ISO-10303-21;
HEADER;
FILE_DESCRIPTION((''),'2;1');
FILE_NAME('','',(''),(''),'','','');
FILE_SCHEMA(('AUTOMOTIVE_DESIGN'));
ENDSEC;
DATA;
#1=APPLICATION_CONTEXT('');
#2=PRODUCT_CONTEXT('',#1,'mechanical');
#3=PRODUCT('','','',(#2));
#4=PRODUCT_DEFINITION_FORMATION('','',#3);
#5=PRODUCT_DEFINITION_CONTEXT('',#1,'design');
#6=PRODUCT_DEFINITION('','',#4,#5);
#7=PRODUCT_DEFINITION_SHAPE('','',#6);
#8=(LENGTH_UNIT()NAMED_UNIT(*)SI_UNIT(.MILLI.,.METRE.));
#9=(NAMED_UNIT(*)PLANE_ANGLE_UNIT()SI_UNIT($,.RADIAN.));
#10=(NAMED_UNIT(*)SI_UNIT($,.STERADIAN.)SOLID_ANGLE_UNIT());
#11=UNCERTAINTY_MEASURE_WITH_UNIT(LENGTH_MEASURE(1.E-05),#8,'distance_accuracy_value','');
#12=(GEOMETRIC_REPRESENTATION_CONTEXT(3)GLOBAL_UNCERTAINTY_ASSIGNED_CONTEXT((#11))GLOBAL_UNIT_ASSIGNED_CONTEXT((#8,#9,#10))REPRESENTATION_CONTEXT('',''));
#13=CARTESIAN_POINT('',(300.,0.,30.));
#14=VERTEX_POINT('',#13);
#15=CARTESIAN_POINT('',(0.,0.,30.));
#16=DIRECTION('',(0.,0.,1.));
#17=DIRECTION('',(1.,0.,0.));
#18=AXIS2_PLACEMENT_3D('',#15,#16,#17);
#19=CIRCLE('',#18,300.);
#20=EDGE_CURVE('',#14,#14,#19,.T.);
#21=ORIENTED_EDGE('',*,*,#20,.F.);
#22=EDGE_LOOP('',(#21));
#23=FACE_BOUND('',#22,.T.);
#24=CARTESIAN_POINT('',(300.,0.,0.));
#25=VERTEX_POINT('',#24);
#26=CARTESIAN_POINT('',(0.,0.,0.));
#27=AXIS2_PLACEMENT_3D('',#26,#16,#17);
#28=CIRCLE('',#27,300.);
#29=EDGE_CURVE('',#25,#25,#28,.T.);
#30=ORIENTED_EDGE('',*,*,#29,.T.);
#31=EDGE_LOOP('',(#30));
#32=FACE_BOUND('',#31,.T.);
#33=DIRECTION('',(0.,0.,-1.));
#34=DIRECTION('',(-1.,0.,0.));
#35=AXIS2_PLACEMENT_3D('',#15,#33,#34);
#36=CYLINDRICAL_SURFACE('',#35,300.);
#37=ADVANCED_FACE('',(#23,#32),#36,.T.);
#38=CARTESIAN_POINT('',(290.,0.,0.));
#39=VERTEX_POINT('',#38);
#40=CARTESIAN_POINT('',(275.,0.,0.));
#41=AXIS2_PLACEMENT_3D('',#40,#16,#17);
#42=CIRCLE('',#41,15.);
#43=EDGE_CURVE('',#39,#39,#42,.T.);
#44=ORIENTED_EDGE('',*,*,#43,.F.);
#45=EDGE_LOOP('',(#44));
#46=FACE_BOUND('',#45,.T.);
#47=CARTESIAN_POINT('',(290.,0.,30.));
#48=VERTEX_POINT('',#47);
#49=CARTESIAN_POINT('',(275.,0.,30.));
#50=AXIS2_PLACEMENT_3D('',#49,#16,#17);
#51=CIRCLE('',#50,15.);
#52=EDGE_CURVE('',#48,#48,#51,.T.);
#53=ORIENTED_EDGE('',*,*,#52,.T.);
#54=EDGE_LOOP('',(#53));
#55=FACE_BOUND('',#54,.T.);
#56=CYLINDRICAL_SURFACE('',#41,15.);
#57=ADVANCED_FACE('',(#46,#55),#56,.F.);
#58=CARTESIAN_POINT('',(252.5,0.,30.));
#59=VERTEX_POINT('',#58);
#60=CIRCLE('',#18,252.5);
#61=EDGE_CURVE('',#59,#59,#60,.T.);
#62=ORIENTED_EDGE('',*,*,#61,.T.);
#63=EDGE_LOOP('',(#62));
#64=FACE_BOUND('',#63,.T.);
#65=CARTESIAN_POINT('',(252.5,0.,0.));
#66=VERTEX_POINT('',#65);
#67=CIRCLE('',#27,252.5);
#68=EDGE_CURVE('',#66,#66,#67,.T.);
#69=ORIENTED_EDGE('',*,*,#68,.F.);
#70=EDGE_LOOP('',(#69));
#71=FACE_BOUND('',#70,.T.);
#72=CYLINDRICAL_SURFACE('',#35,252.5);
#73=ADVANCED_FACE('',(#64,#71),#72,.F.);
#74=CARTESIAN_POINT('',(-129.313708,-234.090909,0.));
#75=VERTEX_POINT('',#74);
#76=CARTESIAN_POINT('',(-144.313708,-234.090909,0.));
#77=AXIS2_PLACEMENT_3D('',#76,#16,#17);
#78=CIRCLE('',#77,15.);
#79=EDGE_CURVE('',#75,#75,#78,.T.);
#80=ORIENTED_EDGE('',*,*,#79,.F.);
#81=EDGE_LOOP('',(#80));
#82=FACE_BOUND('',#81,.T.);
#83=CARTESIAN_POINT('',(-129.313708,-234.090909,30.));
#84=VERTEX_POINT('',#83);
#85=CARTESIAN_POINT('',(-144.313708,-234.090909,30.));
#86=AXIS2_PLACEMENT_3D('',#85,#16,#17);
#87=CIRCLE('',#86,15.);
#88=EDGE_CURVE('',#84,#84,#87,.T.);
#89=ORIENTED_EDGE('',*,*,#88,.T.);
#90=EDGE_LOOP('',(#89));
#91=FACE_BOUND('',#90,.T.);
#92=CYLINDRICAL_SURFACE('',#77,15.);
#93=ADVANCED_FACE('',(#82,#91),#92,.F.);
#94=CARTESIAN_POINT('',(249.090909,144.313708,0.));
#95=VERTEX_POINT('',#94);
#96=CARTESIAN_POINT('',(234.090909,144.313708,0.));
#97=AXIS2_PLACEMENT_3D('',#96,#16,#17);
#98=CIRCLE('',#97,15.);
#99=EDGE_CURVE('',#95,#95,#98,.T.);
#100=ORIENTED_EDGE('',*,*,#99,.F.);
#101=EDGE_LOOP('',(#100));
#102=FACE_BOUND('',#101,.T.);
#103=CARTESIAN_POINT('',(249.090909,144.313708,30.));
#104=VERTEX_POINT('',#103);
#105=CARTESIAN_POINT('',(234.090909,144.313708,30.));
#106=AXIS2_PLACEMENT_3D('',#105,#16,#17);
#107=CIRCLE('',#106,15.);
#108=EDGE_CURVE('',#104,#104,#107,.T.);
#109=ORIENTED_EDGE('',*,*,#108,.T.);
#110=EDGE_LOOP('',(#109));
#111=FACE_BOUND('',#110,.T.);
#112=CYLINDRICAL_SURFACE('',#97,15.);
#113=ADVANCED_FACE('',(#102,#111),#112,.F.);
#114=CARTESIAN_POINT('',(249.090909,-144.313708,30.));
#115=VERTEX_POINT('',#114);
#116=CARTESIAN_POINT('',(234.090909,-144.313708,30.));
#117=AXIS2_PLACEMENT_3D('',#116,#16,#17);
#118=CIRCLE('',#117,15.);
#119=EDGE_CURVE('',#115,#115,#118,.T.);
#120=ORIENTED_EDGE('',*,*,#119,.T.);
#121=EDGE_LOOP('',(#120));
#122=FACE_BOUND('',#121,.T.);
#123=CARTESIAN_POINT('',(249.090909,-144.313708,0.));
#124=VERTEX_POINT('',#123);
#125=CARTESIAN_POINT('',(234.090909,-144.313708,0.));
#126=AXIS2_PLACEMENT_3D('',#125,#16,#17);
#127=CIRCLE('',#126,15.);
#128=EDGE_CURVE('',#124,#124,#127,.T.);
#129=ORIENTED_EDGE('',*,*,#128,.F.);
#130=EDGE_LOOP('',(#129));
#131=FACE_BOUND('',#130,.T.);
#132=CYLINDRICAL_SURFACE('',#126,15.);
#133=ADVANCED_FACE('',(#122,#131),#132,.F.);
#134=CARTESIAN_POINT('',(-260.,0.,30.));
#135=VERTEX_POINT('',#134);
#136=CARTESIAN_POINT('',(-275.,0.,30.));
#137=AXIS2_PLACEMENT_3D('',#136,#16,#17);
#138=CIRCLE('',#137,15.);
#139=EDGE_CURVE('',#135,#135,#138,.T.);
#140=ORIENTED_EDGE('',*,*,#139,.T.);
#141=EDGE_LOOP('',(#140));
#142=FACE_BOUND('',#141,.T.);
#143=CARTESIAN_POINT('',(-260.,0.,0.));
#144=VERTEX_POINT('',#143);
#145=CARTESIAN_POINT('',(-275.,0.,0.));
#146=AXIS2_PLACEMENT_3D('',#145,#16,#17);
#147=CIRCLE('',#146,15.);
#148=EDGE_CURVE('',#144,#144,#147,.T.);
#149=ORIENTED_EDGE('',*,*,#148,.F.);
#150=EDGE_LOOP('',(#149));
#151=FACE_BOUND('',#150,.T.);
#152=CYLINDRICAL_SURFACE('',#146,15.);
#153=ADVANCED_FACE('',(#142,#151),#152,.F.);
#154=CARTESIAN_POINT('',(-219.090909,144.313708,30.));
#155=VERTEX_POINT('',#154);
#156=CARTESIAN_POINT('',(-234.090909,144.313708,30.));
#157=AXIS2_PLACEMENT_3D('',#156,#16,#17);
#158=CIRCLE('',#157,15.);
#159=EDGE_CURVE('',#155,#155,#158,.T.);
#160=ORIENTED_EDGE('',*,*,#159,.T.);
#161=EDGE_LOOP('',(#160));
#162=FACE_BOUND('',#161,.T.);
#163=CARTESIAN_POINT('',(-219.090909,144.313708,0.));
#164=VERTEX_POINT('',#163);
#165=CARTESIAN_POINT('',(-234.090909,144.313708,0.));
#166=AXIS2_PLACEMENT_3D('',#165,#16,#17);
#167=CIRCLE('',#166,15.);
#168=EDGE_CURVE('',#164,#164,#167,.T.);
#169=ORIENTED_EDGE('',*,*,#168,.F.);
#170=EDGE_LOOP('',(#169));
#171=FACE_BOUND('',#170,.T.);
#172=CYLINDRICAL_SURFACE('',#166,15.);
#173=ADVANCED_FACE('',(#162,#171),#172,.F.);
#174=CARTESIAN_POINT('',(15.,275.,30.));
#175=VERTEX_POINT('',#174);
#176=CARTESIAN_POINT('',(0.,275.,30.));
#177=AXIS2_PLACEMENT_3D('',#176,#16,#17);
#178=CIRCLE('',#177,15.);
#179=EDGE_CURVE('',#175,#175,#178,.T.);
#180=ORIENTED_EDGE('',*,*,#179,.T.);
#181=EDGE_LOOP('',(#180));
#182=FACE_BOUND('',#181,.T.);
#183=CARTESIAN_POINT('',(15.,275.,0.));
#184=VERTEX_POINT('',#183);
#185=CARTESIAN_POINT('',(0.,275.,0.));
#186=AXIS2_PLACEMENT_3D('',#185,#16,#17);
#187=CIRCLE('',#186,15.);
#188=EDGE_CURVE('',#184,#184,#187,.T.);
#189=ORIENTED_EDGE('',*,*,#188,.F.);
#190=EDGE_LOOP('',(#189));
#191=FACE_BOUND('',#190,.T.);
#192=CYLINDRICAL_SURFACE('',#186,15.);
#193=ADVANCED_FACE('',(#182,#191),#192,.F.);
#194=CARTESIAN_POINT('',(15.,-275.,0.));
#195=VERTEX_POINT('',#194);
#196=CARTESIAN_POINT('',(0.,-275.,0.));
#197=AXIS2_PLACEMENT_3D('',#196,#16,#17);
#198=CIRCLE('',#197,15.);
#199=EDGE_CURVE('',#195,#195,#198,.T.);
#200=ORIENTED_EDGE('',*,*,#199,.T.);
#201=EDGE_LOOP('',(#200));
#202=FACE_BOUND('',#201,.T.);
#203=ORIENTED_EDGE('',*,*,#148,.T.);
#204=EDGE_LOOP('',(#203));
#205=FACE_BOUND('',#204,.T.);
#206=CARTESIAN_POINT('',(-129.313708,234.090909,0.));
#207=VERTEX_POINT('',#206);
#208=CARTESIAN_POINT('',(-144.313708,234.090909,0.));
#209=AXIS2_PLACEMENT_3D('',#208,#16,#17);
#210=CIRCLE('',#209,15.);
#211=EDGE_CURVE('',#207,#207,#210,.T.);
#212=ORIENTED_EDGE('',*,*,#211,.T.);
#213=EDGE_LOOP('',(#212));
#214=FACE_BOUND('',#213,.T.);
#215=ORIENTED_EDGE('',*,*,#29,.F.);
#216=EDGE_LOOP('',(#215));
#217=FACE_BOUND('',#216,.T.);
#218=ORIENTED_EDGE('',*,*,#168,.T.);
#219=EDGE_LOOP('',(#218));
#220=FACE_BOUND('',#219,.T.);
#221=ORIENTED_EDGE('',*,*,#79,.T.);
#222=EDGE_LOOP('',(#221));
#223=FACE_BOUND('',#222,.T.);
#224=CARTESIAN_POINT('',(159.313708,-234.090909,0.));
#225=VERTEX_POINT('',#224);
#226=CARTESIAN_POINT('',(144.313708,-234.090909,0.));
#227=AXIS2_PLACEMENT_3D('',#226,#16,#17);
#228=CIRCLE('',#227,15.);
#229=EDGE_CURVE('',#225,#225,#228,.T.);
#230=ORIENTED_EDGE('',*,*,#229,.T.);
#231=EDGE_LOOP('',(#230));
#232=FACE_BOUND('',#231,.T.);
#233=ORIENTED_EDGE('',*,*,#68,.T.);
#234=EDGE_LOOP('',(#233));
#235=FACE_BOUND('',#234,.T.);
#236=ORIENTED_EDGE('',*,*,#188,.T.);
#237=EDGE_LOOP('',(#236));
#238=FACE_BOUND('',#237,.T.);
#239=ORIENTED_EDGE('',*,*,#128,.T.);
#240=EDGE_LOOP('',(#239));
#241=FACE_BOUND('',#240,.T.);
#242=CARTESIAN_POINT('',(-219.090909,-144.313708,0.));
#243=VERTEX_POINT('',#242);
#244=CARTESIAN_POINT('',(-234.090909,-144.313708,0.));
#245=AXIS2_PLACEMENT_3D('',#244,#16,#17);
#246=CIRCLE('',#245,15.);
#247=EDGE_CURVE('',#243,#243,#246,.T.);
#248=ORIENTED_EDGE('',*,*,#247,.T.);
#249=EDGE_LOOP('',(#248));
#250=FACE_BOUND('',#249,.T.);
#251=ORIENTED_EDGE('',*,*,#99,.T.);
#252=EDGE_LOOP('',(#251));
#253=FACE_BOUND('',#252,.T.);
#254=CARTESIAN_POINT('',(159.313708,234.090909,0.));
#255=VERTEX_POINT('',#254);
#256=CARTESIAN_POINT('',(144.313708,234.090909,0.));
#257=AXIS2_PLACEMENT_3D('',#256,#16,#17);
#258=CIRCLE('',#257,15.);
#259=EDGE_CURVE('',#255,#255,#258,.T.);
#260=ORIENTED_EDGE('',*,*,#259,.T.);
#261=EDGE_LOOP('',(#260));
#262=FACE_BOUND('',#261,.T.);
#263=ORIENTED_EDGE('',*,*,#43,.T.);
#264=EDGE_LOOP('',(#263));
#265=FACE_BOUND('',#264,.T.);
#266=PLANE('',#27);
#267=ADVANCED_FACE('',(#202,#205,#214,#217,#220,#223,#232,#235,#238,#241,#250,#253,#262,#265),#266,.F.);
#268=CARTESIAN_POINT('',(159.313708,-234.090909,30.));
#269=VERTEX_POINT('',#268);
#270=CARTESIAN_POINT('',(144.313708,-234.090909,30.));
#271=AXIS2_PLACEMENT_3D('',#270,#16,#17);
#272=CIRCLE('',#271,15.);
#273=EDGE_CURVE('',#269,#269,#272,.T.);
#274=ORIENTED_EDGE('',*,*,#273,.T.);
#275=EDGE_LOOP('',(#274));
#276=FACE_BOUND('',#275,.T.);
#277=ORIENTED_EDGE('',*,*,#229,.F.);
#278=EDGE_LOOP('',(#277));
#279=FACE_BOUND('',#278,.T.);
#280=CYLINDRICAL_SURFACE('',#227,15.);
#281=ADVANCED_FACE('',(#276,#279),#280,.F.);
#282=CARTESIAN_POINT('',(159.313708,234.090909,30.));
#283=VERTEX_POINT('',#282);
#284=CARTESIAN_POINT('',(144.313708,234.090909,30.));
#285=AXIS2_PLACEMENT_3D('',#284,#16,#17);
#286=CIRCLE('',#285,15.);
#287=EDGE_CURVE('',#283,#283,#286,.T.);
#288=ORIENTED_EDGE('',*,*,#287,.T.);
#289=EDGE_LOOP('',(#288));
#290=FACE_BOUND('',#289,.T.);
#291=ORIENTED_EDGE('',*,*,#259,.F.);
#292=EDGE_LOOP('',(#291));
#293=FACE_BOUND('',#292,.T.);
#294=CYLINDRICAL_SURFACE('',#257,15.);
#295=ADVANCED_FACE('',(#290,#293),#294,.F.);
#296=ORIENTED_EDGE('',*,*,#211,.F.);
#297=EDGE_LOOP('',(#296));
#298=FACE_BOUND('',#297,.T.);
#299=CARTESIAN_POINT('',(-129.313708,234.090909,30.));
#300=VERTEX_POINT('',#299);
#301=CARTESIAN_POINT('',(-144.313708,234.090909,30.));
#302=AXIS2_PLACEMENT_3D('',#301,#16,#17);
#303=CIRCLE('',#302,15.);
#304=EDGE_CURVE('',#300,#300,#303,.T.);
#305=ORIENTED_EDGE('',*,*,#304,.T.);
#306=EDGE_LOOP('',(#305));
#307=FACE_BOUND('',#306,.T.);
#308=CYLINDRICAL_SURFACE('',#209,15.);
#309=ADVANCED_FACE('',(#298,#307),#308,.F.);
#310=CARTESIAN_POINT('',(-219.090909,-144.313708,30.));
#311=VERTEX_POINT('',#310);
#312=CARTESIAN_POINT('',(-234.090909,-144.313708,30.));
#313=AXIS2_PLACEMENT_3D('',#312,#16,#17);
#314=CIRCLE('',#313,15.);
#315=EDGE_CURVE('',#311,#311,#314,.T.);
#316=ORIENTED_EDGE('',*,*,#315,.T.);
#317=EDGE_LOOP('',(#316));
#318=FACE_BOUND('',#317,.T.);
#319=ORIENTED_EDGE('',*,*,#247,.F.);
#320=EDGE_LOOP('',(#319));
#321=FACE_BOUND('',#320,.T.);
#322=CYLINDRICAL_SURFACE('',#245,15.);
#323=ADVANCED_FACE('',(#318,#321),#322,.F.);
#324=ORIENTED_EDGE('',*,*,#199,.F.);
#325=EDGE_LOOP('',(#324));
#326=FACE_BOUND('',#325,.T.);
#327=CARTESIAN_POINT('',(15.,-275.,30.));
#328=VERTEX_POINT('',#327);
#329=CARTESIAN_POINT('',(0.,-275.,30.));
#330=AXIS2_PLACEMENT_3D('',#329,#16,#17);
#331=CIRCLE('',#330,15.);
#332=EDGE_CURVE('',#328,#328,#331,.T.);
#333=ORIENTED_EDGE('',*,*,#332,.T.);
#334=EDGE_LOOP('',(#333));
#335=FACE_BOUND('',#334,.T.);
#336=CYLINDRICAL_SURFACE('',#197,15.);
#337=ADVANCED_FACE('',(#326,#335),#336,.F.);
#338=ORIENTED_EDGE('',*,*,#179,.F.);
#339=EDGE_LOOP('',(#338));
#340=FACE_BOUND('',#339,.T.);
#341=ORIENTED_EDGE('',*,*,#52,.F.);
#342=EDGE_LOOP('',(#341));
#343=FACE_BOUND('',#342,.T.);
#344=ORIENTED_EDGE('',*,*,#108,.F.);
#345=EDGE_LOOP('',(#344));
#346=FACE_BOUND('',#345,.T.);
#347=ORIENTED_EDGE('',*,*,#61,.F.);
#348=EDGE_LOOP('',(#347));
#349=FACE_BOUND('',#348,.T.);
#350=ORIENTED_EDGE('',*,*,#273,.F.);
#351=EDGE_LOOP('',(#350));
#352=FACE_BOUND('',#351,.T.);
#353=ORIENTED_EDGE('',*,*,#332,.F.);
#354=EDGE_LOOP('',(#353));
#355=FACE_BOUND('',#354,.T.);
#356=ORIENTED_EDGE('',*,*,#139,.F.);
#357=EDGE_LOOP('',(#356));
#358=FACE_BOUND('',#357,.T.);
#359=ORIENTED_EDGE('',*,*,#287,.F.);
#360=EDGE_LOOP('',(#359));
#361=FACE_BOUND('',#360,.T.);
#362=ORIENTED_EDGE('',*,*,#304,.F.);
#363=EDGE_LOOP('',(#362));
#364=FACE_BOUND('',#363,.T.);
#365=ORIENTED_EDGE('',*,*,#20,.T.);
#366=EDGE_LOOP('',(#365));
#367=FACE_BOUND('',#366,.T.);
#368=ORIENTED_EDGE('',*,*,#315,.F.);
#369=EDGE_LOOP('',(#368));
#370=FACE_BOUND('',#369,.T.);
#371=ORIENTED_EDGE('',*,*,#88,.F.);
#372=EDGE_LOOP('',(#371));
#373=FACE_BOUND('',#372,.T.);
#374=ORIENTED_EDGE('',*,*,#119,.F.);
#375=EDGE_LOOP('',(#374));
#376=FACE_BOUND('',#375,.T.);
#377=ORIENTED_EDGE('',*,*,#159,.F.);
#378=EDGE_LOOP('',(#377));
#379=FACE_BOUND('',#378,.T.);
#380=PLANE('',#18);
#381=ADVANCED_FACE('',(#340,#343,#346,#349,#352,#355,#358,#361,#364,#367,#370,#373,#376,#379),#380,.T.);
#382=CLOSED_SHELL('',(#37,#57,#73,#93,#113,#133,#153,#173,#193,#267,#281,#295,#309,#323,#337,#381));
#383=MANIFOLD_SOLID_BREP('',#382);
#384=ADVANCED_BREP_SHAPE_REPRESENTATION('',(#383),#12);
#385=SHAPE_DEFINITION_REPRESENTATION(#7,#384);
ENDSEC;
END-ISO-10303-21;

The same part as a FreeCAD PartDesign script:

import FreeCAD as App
import Part
import Sketcher

V = App.Vector

doc = App.newDocument("Part")
body = doc.addObject("PartDesign::Body", "Body")

# Sketch on XY plane
sketch1 = body.newObject("Sketcher::SketchObject", "Sketch")
sketch1.AttachmentSupport = (doc.getObject("XY_Plane"), [""])
sketch1.MapMode = "FlatFace"
sketch1.addGeometry([
    Part.Circle(V(0, 0, 0), V(0, 0, 1), 300),
    Part.Circle(V(0, 0, 0), V(0, 0, 1), 252),
], False)
sketch1.addConstraint([
    Sketcher.Constraint("Coincident", 0, 3, -1, 1),
    Sketcher.Constraint("Coincident", 1, 3, -1, 1),
    Sketcher.Constraint("Diameter", 0, 600.0),
    Sketcher.Constraint("Diameter", 1, 505.0),
])
pad1 = body.newObject("PartDesign::Pad", "Pad")
pad1.Profile = sketch1
pad1.Length = 30

# Sketch on XY plane
sketch2 = body.newObject("Sketcher::SketchObject", "Sketch001")
sketch2.AttachmentSupport = (doc.getObject("XY_Plane"), [""])
sketch2.MapMode = "FlatFace"
sketch2.AttachmentOffset = App.Placement(V(0, 0, 30), App.Rotation())
sketch2.addGeometry([
    Part.Circle(V(0, 275, 0), V(0, 0, 1), 15),  # 0
    Part.Circle(V(275, 0, 0), V(0, 0, 1), 15),  # 1
    Part.Circle(V(-275, 0, 0), V(0, 0, 1), 15),  # 2
    Part.Circle(V(0, -275, 0), V(0, 0, 1), 15),  # 3
    Part.Circle(V(-144, -234, 0), V(0, 0, 1), 15),  # 4
    Part.Circle(V(-234, -144, 0), V(0, 0, 1), 15),  # 5
    Part.Circle(V(-234, 144, 0), V(0, 0, 1), 15),  # 6
    Part.Circle(V(144, -234, 0), V(0, 0, 1), 15),  # 7
    Part.Circle(V(234, -144, 0), V(0, 0, 1), 15),  # 8
    Part.Circle(V(234, 144, 0), V(0, 0, 1), 15),  # 9
    Part.Circle(V(-144, 234, 0), V(0, 0, 1), 15),  # 10
    Part.Circle(V(144, 234, 0), V(0, 0, 1), 15),  # 11
], False)
sketch2.addConstraint([
    Sketcher.Constraint("Equal", 0, 1),
    Sketcher.Constraint("Equal", 1, 2),
    Sketcher.Constraint("Equal", 2, 3),
    Sketcher.Constraint("Equal", 3, 4),
    Sketcher.Constraint("Equal", 4, 5),
    Sketcher.Constraint("Equal", 5, 6),
    Sketcher.Constraint("Equal", 6, 7),
    Sketcher.Constraint("Equal", 7, 8),
    Sketcher.Constraint("Equal", 8, 9),
    Sketcher.Constraint("Equal", 9, 10),
    Sketcher.Constraint("Equal", 10, 11),
    Sketcher.Constraint("Symmetric", 1, 3, 2, 3, -1, 1),
    Sketcher.Constraint("Symmetric", 0, 3, 3, 3, -1, 1),
    Sketcher.Constraint("Symmetric", 6, 3, 8, 3, -1, 1),
    Sketcher.Constraint("Symmetric", 5, 3, 9, 3, -1, 1),
    Sketcher.Constraint("Symmetric", 7, 3, 10, 3, -1, 1),
    Sketcher.Constraint("Symmetric", 4, 3, 11, 3, -1, 1),
    Sketcher.Constraint("Symmetric", 4, 3, 7, 3, -2),
    Sketcher.Constraint("Symmetric", 5, 3, 8, 3, -2),
    Sketcher.Constraint("PointOnObject", 0, 3, -2),
    Sketcher.Constraint("PointOnObject", 1, 3, -1),
    Sketcher.Constraint("Diameter", 0, 30.0),
    Sketcher.Constraint("DistanceY", -1, 1, 0, 3, 275.0),
    Sketcher.Constraint("DistanceX", -1, 1, 1, 3, 275.0),
    Sketcher.Constraint("DistanceX", 5, 3, 4, 3, 89.777201),
    Sketcher.Constraint("DistanceY", 4, 3, 5, 3, 89.777201),
    Sketcher.Constraint("DistanceY", 4, 3, -1, 1, 234.090909),
    Sketcher.Constraint("DistanceX", 5, 3, -1, 1, 234.090909),
])
pocket1 = body.newObject("PartDesign::Pocket", "Pocket")
pocket1.Profile = sketch2
pocket1.Length = 30

doc.recompute()
